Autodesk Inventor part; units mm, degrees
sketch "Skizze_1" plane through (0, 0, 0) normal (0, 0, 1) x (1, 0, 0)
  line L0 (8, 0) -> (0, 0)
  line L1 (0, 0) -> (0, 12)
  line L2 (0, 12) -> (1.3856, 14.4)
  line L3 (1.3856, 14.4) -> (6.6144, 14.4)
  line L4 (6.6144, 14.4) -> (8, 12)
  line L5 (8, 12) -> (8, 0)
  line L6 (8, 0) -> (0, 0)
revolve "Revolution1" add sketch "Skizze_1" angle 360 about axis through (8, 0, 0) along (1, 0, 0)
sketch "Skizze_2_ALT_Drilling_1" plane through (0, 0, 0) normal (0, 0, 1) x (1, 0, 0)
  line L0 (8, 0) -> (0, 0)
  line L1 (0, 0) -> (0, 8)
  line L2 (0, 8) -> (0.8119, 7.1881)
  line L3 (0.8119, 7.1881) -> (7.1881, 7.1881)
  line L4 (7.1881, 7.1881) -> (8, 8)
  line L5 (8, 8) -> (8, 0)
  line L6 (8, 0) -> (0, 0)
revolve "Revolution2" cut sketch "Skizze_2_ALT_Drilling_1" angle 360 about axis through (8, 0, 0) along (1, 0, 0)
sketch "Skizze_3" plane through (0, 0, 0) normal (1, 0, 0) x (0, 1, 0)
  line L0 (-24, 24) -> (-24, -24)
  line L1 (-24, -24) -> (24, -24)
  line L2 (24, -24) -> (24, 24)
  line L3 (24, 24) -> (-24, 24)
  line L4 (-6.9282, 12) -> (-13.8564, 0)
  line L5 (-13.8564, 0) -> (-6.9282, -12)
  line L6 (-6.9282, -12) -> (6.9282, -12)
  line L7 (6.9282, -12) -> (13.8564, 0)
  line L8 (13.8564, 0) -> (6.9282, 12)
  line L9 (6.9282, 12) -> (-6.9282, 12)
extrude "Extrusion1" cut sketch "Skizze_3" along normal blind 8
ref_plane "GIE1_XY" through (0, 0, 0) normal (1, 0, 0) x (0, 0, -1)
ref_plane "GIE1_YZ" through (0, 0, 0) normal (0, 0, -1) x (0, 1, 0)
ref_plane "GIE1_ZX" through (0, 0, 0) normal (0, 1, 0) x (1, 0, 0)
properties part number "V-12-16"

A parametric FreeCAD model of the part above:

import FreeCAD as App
import Part
import Sketcher

V = App.Vector
Q = App.Units.Quantity


def add_polygon(sketch, points):
    """Adds a closed chain of lines whose ends are joined by coincident constraints."""
    first, n = sketch.GeometryCount, len(points)
    for a, b in zip(points, points[1:] + points[:1]):
        sketch.addGeometry(Part.LineSegment(App.Vector(*a, 0), App.Vector(*b, 0)), False)
    for i in range(n):
        sketch.addConstraint(Sketcher.Constraint("Coincident", first + i, 2, first + (i + 1) % n, 1))

doc = App.newDocument("Part")
body = doc.addObject("PartDesign::Body", "Body")

sketch1 = body.newObject("Sketcher::SketchObject", "Sketch")
sketch1.AttachmentSupport = (doc.getObject("XY_Plane"), [""])
sketch1.MapMode = "FlatFace"
add_polygon(sketch1, [(0, 0), (8, 0), (8, 12), (6.6, 14.4), (1.4, 14.4), (0, 12)])
sketch1.addConstraint([
    Sketcher.Constraint("Horizontal", 0),
    Sketcher.Constraint("Vertical", 1),
    Sketcher.Constraint("Horizontal", 3),
    Sketcher.Constraint("Vertical", 5),
    Sketcher.Constraint("Coincident", 5, 2, -1, 1),
    Sketcher.Constraint("Horizontal", 1, 2, 4, 2),
    Sketcher.Constraint("Equal", 2, 4),
    Sketcher.Constraint("DistanceX", 0, 1, 0, 2, 8.0),
    Sketcher.Constraint("DistanceY", 1, 1, 1, 2, 12.0),
    Sketcher.Constraint("Angle", 2, Q("119.9993 deg")),
    Sketcher.Constraint("DistanceY", -1, 1, 2, 2, 14.4),
])
revolution = body.newObject("PartDesign::Revolution", "Revolution")
revolution.Profile = sketch1
revolution.ReferenceAxis = (sketch1, ["H_Axis"])
revolution.Angle = 360

sketch2 = body.newObject("Sketcher::SketchObject", "Sketch001")
sketch2.AttachmentSupport = (doc.getObject("XY_Plane"), [""])
sketch2.MapMode = "FlatFace"
add_polygon(sketch2, [(0, 0), (8, 0), (8, 8), (7.2, 7.2), (0.8, 7.2), (0, 8)])
sketch2.addConstraint([
    Sketcher.Constraint("Horizontal", 0),
    Sketcher.Constraint("Vertical", 1),
    Sketcher.Constraint("Horizontal", 3),
    Sketcher.Constraint("Vertical", 5),
    Sketcher.Constraint("Coincident", 5, 2, -1, 1),
    Sketcher.Constraint("Perpendicular", 2, 4),
    Sketcher.Constraint("Horizontal", 1, 2, 4, 2),
    Sketcher.Constraint("Equal", 0, 1),
    Sketcher.Constraint("Equal", 2, 4),
    Sketcher.Constraint("DistanceX", 0, 1, 0, 2, 8.0),
    Sketcher.Constraint("DistanceX", 3, 2, 3, 1, 6.3762),
])
groove = body.newObject("PartDesign::Groove", "Groove")
groove.Profile = sketch2
groove.ReferenceAxis = (sketch2, ["H_Axis"])
groove.Angle = 360

sketch3 = body.newObject("Sketcher::SketchObject", "Sketch002")
sketch3.AttachmentSupport = (doc.getObject("YZ_Plane"), [""])
sketch3.MapMode = "FlatFace"
add_polygon(sketch3, [(24, 24), (-24, 24), (-24, -24), (24, -24)])
add_polygon(sketch3, [(-14, 0), (-7, 12), (7, 12), (14, 0), (7, -12), (-7, -12)])
sketch3.addConstraint([
    Sketcher.Constraint("Horizontal", 0),
    Sketcher.Constraint("Vertical", 1),
    Sketcher.Constraint("Horizontal", 2),
    Sketcher.Constraint("Vertical", 3),
    Sketcher.Constraint("Horizontal", 5),
    Sketcher.Constraint("Horizontal", 8),
    Sketcher.Constraint("Symmetric", 0, 2, 2, 2, -1, 1),
    Sketcher.Constraint("Symmetric", 4, 2, 7, 2, -1, 1),
    Sketcher.Constraint("Symmetric", 6, 2, 9, 2, -1, 1),
    Sketcher.Constraint("PointOnObject", 6, 2, -1),
    Sketcher.Constraint("Parallel", 6, 9),
    Sketcher.Constraint("Vertical", 5, 2, 7, 2),
    Sketcher.Constraint("Equal", 2, 1),
    Sketcher.Constraint("DistanceX", 0, 2, 0, 1, 48.0),
    Sketcher.Constraint("Angle", 4, Q("60 deg")),
    Sketcher.Constraint("DistanceY", -1, 1, 4, 2, 12.0),
    Sketcher.Constraint("DistanceX", 5, 1, 5, 2, 13.8564),
])
pocket1 = body.newObject("PartDesign::Pocket", "Pocket")
pocket1.Profile = sketch3
pocket1.Length = 8
pocket1.Reversed = True

doc.recompute()
